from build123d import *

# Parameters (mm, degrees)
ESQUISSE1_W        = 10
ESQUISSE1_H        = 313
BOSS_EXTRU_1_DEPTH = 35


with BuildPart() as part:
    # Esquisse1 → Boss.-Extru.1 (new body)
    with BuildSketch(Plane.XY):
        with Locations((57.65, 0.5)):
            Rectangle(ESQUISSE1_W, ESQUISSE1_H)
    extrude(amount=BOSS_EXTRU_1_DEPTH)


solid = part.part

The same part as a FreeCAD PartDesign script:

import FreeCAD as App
import Part
import Sketcher
from FreeCAD import Vector
Q = App.Units.Quantity

doc = App.newDocument("Part")
body = doc.addObject("PartDesign::Body", "Body")

# Sketch on XY plane
sketch1 = doc.addObject("Sketcher::SketchObject", "Sketch")
body.addObject(sketch1)
sketch1.AttachmentSupport = (doc.XY_Plane, [""])
sketch1.MapMode = "FlatFace"
sketch1.addGeometry(Part.LineSegment(Vector(53, 157, 0), Vector(53, -156, 0)), False)
sketch1.addGeometry(Part.LineSegment(Vector(53, -156, 0), Vector(63, -156, 0)), False)
sketch1.addGeometry(Part.LineSegment(Vector(63, -156, 0), Vector(63, 157, 0)), False)
sketch1.addGeometry(Part.LineSegment(Vector(63, 157, 0), Vector(53, 157, 0)), False)
sketch1.addConstraint(Sketcher.Constraint("Coincident", 0, 2, 1, 1))
sketch1.addConstraint(Sketcher.Constraint("Coincident", 1, 2, 2, 1))
sketch1.addConstraint(Sketcher.Constraint("Coincident", 2, 2, 3, 1))
sketch1.addConstraint(Sketcher.Constraint("Coincident", 3, 2, 0, 1))
sketch1.addConstraint(Sketcher.Constraint("Vertical", 0))
sketch1.addConstraint(Sketcher.Constraint("Horizontal", 1))
sketch1.addConstraint(Sketcher.Constraint("Vertical", 2))
sketch1.addConstraint(Sketcher.Constraint("Horizontal", 3))
sketch1.addConstraint(Sketcher.Constraint("DistanceX", 1, 1, 1, 2, Q("10 mm")))
sketch1.addConstraint(Sketcher.Constraint("DistanceY", 0, 2, 0, 1, Q("313 mm")))
sketch1.addConstraint(Sketcher.Constraint("DistanceY", 0, 2, -1, 1, Q("156 mm")))
sketch1.addConstraint(Sketcher.Constraint("DistanceX", -1, 1, 0, 2, Q("52.65 mm")))
pad1 = doc.addObject("PartDesign::Pad", "Pad")
body.addObject(pad1)
pad1.Profile = sketch1
pad1.Length = 35

doc.recompute()
